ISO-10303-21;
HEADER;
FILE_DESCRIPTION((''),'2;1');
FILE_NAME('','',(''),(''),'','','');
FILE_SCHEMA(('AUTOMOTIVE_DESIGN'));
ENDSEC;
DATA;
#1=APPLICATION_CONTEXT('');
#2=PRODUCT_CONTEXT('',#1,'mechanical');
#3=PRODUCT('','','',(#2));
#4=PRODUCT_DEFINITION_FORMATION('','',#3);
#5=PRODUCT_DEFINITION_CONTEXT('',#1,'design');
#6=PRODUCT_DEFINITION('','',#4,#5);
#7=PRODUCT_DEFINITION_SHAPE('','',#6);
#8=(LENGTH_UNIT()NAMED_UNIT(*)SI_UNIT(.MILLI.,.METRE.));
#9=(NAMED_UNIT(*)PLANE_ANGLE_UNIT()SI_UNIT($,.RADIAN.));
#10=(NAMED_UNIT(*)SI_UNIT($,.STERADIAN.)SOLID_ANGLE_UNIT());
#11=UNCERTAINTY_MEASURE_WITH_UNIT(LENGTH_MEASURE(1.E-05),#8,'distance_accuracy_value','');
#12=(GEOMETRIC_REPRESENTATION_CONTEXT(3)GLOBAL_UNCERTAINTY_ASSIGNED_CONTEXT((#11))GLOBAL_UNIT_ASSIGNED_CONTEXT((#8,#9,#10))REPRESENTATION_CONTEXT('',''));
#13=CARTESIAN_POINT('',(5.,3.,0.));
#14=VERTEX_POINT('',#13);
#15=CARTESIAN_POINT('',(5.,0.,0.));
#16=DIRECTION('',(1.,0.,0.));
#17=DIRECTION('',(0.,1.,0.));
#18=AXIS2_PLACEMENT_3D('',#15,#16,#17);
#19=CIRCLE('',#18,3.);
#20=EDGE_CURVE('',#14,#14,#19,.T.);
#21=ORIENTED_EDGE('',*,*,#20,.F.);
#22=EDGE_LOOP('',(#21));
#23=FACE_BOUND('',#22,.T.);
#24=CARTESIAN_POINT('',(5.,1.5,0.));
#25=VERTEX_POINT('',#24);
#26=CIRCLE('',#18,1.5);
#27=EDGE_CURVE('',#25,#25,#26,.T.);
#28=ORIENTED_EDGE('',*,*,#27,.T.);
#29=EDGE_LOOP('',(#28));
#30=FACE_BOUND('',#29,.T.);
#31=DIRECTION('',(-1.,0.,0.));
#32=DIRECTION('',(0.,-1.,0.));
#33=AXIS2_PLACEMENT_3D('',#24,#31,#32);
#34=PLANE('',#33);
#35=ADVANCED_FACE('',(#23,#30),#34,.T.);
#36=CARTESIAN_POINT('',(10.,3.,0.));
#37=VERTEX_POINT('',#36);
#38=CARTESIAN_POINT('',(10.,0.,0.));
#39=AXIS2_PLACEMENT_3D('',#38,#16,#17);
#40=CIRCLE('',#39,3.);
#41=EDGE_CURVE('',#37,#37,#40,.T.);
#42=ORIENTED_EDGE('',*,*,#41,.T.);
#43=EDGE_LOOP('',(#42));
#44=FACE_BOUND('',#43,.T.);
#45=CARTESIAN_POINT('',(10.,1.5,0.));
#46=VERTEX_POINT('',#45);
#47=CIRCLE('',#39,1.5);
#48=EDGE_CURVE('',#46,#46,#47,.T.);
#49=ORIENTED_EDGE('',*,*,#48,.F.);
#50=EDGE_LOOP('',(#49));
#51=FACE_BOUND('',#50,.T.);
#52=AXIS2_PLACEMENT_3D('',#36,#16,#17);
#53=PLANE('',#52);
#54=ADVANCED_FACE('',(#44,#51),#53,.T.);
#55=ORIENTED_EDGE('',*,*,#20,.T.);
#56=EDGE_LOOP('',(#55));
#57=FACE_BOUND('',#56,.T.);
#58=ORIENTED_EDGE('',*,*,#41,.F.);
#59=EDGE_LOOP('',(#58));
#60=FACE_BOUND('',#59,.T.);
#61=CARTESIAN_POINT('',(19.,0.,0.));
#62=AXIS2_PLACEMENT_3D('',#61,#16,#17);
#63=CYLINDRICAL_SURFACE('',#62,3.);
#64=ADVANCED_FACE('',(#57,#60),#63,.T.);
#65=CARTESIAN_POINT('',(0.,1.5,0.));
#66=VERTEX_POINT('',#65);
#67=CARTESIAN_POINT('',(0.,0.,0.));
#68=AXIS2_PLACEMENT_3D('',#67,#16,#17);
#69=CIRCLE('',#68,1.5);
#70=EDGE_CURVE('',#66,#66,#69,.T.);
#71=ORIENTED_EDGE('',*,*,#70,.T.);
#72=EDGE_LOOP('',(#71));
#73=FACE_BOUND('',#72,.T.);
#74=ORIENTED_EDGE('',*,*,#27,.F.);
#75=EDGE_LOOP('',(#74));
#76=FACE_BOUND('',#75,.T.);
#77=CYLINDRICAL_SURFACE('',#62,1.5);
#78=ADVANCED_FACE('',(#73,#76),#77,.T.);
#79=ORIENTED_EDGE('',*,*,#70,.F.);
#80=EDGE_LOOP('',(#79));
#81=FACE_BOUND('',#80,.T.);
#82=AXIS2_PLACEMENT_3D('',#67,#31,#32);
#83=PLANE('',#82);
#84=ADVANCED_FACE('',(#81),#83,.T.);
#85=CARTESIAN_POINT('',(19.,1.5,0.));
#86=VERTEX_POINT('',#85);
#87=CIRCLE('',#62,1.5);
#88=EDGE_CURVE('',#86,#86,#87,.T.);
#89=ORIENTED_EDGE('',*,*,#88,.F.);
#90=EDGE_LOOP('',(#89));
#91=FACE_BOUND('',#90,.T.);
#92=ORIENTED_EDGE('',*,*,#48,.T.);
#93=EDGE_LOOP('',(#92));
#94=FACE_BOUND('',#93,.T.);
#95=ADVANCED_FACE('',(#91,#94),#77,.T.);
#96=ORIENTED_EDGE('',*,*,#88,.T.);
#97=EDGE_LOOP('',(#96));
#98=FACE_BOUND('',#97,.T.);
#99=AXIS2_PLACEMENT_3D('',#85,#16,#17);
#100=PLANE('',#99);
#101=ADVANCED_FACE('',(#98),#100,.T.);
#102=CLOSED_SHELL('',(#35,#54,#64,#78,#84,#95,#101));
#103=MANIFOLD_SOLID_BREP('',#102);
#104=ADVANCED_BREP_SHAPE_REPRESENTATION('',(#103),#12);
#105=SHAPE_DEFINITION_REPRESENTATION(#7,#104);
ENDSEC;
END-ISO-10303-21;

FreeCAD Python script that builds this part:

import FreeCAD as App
import Part
import Sketcher

doc = App.newDocument("Part")
body = doc.addObject("PartDesign::Body", "Body")

# Sketch on XY plane
sketch1 = body.newObject("Sketcher::SketchObject", "Sketch")
sketch1.AttachmentSupport = (doc.getObject("XY_Plane"), [""])
sketch1.MapMode = "FlatFace"
sketch1.addGeometry([
    Part.LineSegment(App.Vector(0, 1.5, 0), App.Vector(0, 0, 0)),  # 0
    Part.LineSegment(App.Vector(0, 0, 0), App.Vector(19, 0, 0)),  # 1
    Part.LineSegment(App.Vector(19, 0, 0), App.Vector(19, 1.5, 0)),  # 2
    Part.LineSegment(App.Vector(19, 1.5, 0), App.Vector(10, 1.5, 0)),  # 3
    Part.LineSegment(App.Vector(10, 1.5, 0), App.Vector(10, 3, 0)),  # 4
    Part.LineSegment(App.Vector(10, 3, 0), App.Vector(5, 3, 0)),  # 5
    Part.LineSegment(App.Vector(5, 3, 0), App.Vector(5, 1.5, 0)),  # 6
    Part.LineSegment(App.Vector(5, 1.5, 0), App.Vector(0, 1.5, 0)),  # 7
], False)
sketch1.addConstraint([
    Sketcher.Constraint("Coincident", 0, 2, 1, 1),
    Sketcher.Constraint("Coincident", 1, 2, 2, 1),
    Sketcher.Constraint("Coincident", 2, 2, 3, 1),
    Sketcher.Constraint("Coincident", 3, 2, 4, 1),
    Sketcher.Constraint("Coincident", 4, 2, 5, 1),
    Sketcher.Constraint("Coincident", 5, 2, 6, 1),
    Sketcher.Constraint("Coincident", 6, 2, 7, 1),
    Sketcher.Constraint("Coincident", 7, 2, 0, 1),
    Sketcher.Constraint("Vertical", 0),
    Sketcher.Constraint("Horizontal", 1),
    Sketcher.Constraint("Vertical", 2),
    Sketcher.Constraint("Horizontal", 3),
    Sketcher.Constraint("Vertical", 4),
    Sketcher.Constraint("Horizontal", 5),
    Sketcher.Constraint("Vertical", 6),
    Sketcher.Constraint("Horizontal", 7),
    Sketcher.Constraint("Coincident", 0, 2, -1, 1),
    Sketcher.Constraint("Horizontal", 3, 2, 6, 2),
    Sketcher.Constraint("Equal", 5, 7),
    Sketcher.Constraint("Equal", 2, 4),
    Sketcher.Constraint("DistanceX", 1, 1, 1, 2, 19.0),
    Sketcher.Constraint("DistanceX", 3, 2, 3, 1, 9.0),
    Sketcher.Constraint("DistanceY", 0, 2, 0, 1, 1.5),
])
revolution = body.newObject("PartDesign::Revolution", "Revolution")
revolution.Profile = sketch1
revolution.ReferenceAxis = (sketch1, ["H_Axis"])
revolution.Angle = 360

doc.recompute()
